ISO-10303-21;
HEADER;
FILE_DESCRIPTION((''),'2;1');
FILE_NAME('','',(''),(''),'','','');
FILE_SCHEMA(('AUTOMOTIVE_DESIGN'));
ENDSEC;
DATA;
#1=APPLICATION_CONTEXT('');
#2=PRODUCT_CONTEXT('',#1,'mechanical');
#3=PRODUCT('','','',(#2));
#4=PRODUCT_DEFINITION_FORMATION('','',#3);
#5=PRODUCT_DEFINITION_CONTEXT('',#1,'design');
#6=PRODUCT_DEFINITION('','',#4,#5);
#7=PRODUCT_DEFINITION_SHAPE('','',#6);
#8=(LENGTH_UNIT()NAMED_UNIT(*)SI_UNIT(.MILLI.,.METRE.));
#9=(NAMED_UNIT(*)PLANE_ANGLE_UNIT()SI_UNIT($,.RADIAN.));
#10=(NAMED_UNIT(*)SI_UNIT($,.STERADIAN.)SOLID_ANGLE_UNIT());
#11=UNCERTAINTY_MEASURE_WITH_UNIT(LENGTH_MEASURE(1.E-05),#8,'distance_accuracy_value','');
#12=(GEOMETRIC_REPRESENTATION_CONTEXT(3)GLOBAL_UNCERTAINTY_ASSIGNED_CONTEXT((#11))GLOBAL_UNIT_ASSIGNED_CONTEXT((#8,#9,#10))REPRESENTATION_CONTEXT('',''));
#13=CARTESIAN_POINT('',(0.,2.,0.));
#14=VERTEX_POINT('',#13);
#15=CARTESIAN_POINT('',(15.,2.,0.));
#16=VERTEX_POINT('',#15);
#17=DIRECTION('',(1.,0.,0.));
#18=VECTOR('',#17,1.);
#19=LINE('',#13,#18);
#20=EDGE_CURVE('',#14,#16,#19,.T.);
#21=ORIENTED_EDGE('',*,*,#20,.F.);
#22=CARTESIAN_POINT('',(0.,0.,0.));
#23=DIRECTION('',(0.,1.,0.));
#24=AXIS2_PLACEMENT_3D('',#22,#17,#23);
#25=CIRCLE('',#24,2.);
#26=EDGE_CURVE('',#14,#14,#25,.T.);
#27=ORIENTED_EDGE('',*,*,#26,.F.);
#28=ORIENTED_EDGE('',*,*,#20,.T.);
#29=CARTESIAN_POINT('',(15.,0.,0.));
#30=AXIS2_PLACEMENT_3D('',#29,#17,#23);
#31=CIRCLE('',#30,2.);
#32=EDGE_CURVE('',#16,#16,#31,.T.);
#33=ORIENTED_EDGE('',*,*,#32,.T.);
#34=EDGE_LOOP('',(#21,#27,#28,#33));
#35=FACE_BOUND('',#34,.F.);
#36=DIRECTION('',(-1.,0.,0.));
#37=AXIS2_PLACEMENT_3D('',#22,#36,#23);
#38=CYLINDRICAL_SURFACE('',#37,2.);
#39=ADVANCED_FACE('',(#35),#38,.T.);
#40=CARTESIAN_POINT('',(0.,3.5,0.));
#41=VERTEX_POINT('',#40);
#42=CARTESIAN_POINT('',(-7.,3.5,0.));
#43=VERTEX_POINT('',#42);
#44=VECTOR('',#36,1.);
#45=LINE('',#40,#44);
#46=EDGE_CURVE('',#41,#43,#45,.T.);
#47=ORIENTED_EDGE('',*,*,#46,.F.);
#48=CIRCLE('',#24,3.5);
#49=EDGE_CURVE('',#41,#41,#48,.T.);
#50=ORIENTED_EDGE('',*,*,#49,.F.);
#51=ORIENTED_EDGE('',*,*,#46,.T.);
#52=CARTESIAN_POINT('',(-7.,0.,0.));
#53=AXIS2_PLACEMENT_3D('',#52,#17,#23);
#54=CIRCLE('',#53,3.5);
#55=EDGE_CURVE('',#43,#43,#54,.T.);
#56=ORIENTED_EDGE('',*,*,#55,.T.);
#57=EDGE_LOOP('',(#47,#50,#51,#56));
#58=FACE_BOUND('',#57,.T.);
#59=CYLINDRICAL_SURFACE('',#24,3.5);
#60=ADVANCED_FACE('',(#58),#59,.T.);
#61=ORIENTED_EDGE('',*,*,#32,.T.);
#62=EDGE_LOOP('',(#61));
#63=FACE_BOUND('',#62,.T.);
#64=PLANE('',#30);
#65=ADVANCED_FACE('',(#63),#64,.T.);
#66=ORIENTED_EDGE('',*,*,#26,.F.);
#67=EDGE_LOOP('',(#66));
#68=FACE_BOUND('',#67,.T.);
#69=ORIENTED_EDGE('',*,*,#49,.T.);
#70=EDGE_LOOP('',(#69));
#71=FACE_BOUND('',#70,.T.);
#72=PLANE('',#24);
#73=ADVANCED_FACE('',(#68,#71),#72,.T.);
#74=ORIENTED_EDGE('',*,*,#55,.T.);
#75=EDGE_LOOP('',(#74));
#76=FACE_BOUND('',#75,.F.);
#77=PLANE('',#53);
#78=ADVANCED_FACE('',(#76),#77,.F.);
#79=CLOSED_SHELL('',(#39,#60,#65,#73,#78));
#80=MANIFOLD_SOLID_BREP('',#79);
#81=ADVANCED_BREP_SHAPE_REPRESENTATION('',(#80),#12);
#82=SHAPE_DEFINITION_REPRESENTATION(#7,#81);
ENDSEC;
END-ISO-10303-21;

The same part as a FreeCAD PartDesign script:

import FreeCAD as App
import Part
import Sketcher
Q = App.Units.Quantity

doc = App.newDocument("Part")
body = doc.addObject("PartDesign::Body", "Body")

sketch1 = body.newObject("Sketcher::SketchObject", "Sketch")
sketch1.AttachmentSupport = (doc.getObject("YZ_Plane"), [""])
sketch1.MapMode = "FlatFace"
sketch1.addGeometry(Part.Circle(App.Vector(0, 0, 0), App.Vector(0, 0, 1), 3.5), False)
sketch1.addConstraint([
    Sketcher.Constraint("Coincident", 0, 3, -1, 1),
    Sketcher.Constraint("Diameter", 0, Q("7 mm")),
])
pad1 = body.newObject("PartDesign::Pad", "Pad")
pad1.Profile = sketch1
pad1.Length = 7
pad1.Reversed = True

sketch2 = body.newObject("Sketcher::SketchObject", "Sketch001")
sketch2.AttachmentSupport = (doc.getObject("YZ_Plane"), [""])
sketch2.MapMode = "FlatFace"
sketch2.addGeometry(Part.Circle(App.Vector(0, 0, 0), App.Vector(0, 0, 1), 2), False)
sketch2.addConstraint([
    Sketcher.Constraint("Coincident", 0, 3, -1, 1),
    Sketcher.Constraint("Diameter", 0, Q("4 mm")),
])
pad2 = body.newObject("PartDesign::Pad", "Pad001")
pad2.Profile = sketch2
pad2.Length = 15

doc.recompute()
